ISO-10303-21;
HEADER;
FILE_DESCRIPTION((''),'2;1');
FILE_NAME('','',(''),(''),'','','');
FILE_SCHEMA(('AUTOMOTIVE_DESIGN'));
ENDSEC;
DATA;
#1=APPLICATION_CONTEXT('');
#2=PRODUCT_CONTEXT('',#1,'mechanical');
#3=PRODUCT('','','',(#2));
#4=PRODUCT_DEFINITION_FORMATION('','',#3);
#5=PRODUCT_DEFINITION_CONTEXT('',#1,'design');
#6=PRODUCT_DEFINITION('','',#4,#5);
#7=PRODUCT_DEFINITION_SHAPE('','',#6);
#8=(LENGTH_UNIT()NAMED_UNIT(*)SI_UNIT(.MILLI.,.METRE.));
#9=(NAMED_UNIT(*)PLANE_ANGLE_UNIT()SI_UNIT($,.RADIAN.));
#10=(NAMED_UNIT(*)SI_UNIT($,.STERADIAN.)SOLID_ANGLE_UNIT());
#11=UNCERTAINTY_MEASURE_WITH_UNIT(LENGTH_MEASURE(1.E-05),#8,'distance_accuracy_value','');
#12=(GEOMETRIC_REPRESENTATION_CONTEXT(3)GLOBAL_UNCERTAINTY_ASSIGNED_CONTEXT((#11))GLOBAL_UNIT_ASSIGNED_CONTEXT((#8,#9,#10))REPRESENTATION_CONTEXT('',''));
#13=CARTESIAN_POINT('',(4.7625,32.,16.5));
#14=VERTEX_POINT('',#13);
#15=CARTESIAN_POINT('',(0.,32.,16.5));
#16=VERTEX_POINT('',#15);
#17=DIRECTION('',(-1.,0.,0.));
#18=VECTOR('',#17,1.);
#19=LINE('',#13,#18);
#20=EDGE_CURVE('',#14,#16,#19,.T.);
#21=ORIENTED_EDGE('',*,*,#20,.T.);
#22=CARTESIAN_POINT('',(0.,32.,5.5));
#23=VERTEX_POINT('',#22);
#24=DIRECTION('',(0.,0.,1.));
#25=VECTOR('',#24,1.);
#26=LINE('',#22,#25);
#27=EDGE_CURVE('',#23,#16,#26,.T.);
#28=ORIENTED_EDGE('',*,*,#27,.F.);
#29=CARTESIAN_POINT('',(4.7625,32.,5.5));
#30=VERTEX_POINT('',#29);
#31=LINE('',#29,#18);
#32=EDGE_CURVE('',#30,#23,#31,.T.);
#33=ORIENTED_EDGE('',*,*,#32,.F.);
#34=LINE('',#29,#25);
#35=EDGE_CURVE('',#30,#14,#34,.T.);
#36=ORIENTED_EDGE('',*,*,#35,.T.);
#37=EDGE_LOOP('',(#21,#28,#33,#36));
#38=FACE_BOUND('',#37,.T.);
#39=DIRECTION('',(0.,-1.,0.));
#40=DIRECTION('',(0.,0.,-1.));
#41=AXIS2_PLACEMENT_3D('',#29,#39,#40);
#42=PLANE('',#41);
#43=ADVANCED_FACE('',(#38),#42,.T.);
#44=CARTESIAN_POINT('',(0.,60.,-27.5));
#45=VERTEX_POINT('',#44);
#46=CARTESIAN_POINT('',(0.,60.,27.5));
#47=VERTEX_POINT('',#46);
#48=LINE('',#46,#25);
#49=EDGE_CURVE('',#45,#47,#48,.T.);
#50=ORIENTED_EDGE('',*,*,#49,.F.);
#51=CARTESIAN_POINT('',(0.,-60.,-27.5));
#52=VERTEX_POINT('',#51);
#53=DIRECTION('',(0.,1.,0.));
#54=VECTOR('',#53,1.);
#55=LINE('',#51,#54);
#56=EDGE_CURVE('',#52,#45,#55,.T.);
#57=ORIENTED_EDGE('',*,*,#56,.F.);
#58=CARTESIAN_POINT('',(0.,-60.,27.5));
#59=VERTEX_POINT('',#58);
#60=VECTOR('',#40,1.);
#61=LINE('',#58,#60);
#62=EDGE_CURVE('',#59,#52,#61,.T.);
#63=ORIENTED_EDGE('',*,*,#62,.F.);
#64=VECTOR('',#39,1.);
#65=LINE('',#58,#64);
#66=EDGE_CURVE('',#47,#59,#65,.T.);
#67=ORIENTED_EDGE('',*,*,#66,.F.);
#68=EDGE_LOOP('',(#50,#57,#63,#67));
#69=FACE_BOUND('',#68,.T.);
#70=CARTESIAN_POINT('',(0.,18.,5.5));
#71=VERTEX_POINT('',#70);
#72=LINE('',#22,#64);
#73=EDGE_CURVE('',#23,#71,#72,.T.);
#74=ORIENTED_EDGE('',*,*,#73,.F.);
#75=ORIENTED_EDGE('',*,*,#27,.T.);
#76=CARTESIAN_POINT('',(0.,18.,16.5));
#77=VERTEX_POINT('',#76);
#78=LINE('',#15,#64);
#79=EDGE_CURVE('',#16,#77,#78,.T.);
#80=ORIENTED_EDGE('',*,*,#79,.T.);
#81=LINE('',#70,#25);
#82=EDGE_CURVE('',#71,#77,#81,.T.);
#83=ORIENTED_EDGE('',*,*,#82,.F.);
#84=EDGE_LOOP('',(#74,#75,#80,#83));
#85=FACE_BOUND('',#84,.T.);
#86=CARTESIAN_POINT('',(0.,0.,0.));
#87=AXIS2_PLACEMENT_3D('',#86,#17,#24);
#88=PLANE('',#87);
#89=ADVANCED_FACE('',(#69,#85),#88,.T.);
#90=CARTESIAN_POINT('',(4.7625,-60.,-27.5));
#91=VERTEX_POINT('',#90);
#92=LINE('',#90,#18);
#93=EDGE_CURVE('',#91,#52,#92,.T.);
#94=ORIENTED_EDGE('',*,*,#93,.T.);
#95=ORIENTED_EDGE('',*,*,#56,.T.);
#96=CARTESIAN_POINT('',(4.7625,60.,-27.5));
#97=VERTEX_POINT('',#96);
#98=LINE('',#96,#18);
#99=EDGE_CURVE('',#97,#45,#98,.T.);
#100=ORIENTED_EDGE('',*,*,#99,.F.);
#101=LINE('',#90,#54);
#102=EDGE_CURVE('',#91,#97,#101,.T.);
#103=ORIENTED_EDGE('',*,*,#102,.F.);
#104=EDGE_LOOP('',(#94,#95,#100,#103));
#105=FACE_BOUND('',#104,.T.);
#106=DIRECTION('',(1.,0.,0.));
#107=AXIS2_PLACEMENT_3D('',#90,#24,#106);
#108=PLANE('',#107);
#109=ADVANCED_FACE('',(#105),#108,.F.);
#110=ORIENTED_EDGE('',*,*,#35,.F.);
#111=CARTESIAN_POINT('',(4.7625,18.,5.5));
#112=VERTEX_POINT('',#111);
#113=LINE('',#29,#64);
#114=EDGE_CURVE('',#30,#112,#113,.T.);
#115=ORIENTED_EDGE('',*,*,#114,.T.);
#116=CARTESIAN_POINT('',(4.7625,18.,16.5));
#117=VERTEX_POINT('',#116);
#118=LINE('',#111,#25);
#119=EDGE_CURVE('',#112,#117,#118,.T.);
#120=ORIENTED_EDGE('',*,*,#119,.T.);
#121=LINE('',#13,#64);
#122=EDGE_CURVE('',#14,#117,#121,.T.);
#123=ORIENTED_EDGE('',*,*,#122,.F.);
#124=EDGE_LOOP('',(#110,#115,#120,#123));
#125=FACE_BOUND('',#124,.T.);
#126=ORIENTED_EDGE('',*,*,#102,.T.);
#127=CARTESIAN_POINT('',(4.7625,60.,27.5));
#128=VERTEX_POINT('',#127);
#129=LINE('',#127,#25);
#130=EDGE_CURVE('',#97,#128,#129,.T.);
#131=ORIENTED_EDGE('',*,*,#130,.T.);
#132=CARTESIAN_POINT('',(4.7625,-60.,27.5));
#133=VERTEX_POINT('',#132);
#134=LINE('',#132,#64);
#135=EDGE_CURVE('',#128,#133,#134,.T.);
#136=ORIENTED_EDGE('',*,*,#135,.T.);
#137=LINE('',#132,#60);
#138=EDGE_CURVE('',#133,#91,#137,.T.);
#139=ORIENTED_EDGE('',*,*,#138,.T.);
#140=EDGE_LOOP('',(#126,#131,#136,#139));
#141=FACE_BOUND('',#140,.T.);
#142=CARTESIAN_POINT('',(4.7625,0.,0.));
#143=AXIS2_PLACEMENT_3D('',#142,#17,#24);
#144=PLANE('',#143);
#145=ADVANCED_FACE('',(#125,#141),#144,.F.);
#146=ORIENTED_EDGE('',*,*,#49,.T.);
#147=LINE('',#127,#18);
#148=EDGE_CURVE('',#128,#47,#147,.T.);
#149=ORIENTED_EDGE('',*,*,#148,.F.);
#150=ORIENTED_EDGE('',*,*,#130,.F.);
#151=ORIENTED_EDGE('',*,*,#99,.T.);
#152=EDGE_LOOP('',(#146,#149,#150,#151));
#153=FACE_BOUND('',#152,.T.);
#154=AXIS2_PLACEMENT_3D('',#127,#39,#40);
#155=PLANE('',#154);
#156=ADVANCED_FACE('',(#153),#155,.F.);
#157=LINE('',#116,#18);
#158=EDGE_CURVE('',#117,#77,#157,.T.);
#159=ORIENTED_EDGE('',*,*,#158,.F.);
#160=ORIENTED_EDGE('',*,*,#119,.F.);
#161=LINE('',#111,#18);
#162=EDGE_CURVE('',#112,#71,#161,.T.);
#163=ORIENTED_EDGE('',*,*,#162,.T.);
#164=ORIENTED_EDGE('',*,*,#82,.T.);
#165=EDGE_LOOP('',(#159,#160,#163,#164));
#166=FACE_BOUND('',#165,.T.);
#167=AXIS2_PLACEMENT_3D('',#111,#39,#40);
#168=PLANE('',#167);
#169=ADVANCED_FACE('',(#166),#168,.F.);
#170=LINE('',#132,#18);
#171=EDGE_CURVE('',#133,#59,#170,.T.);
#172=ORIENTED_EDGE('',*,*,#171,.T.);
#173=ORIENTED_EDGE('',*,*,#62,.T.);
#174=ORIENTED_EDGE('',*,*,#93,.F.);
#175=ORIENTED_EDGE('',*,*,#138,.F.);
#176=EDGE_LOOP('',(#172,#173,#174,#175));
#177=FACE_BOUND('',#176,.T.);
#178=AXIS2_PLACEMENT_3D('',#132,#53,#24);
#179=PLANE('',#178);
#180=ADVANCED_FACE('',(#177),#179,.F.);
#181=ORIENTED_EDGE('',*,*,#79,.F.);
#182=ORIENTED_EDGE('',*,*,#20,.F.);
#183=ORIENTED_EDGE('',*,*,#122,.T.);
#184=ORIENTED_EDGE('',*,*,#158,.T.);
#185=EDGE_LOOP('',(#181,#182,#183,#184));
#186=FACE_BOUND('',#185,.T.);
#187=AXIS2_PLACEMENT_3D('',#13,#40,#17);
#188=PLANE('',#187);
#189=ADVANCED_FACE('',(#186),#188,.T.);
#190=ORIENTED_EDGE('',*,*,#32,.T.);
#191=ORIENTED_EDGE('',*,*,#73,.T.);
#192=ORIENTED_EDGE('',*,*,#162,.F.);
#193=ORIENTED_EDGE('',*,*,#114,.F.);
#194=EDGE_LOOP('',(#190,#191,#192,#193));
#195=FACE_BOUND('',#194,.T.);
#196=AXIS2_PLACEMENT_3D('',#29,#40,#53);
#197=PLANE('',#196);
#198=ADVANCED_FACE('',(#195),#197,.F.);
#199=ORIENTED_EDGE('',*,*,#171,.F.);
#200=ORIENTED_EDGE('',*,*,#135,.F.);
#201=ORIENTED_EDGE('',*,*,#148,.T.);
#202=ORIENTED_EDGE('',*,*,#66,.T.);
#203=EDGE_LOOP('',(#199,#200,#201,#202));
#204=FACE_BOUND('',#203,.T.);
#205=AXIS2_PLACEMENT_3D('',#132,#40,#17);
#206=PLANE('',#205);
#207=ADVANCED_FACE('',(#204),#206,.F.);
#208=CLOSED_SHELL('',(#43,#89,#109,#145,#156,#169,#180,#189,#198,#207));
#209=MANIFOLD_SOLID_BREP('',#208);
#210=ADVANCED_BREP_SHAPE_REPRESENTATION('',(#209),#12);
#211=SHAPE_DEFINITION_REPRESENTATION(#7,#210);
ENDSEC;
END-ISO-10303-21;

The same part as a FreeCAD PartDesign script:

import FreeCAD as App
import Part
import Sketcher


def add_polygon(sketch, points):
    """Adds a closed chain of lines whose ends are joined by coincident constraints."""
    first, n = sketch.GeometryCount, len(points)
    for a, b in zip(points, points[1:] + points[:1]):
        sketch.addGeometry(Part.LineSegment(App.Vector(*a, 0), App.Vector(*b, 0)), False)
    for i in range(n):
        sketch.addConstraint(Sketcher.Constraint("Coincident", first + i, 2, first + (i + 1) % n, 1))

doc = App.newDocument("Part")
body = doc.addObject("PartDesign::Body", "Body")

# Sketch on YZ plane
sketch1 = doc.addObject("Sketcher::SketchObject", "Sketch")
body.addObject(sketch1)
sketch1.AttachmentSupport = (doc.YZ_Plane, [""])
sketch1.MapMode = "FlatFace"
add_polygon(sketch1, [(60, 28), (-60, 28), (-60, -28), (60, -28)])  # lines 0-3
sketch1.addConstraint(Sketcher.Constraint("Horizontal", 0))
sketch1.addConstraint(Sketcher.Constraint("Vertical", 1))
sketch1.addConstraint(Sketcher.Constraint("Horizontal", 2))
sketch1.addConstraint(Sketcher.Constraint("Vertical", 3))
sketch1.addConstraint(Sketcher.Constraint("Symmetric", 0, 2, 2, 2, -1, 1))
sketch1.addConstraint(Sketcher.Constraint("DistanceX", 0, 2, 0, 1, 120.0))
sketch1.addConstraint(Sketcher.Constraint("DistanceY", 1, 2, 1, 1, 55.0))
pad1 = doc.addObject("PartDesign::Pad", "Pad")
body.addObject(pad1)
pad1.Profile = sketch1
pad1.Length = 4.7625

# Sketch on YZ plane
sketch2 = doc.addObject("Sketcher::SketchObject", "Sketch001")
body.addObject(sketch2)
sketch2.AttachmentSupport = (doc.YZ_Plane, [""])
sketch2.MapMode = "FlatFace"
add_polygon(sketch2, [(32, 6), (18, 6), (18, 16), (32, 16)])  # lines 0-3
sketch2.addConstraint(Sketcher.Constraint("Horizontal", 0))
sketch2.addConstraint(Sketcher.Constraint("Vertical", 1))
sketch2.addConstraint(Sketcher.Constraint("Horizontal", 2))
sketch2.addConstraint(Sketcher.Constraint("Vertical", 3))
sketch2.addConstraint(Sketcher.Constraint("DistanceX", 0, 2, 0, 1, 14.0))
sketch2.addConstraint(Sketcher.Constraint("DistanceY", 1, 1, 1, 2, 11.0))
sketch2.addConstraint(Sketcher.Constraint("DistanceX", -1, 1, 0, 2, 18.0))
sketch2.addConstraint(Sketcher.Constraint("DistanceY", -1, 1, 0, 2, 5.5))
pocket1 = doc.addObject("PartDesign::Pocket", "Pocket")
body.addObject(pocket1)
pocket1.Profile = sketch2
pocket1.Type = "ThroughAll"
pocket1.Reversed = True

doc.recompute()
